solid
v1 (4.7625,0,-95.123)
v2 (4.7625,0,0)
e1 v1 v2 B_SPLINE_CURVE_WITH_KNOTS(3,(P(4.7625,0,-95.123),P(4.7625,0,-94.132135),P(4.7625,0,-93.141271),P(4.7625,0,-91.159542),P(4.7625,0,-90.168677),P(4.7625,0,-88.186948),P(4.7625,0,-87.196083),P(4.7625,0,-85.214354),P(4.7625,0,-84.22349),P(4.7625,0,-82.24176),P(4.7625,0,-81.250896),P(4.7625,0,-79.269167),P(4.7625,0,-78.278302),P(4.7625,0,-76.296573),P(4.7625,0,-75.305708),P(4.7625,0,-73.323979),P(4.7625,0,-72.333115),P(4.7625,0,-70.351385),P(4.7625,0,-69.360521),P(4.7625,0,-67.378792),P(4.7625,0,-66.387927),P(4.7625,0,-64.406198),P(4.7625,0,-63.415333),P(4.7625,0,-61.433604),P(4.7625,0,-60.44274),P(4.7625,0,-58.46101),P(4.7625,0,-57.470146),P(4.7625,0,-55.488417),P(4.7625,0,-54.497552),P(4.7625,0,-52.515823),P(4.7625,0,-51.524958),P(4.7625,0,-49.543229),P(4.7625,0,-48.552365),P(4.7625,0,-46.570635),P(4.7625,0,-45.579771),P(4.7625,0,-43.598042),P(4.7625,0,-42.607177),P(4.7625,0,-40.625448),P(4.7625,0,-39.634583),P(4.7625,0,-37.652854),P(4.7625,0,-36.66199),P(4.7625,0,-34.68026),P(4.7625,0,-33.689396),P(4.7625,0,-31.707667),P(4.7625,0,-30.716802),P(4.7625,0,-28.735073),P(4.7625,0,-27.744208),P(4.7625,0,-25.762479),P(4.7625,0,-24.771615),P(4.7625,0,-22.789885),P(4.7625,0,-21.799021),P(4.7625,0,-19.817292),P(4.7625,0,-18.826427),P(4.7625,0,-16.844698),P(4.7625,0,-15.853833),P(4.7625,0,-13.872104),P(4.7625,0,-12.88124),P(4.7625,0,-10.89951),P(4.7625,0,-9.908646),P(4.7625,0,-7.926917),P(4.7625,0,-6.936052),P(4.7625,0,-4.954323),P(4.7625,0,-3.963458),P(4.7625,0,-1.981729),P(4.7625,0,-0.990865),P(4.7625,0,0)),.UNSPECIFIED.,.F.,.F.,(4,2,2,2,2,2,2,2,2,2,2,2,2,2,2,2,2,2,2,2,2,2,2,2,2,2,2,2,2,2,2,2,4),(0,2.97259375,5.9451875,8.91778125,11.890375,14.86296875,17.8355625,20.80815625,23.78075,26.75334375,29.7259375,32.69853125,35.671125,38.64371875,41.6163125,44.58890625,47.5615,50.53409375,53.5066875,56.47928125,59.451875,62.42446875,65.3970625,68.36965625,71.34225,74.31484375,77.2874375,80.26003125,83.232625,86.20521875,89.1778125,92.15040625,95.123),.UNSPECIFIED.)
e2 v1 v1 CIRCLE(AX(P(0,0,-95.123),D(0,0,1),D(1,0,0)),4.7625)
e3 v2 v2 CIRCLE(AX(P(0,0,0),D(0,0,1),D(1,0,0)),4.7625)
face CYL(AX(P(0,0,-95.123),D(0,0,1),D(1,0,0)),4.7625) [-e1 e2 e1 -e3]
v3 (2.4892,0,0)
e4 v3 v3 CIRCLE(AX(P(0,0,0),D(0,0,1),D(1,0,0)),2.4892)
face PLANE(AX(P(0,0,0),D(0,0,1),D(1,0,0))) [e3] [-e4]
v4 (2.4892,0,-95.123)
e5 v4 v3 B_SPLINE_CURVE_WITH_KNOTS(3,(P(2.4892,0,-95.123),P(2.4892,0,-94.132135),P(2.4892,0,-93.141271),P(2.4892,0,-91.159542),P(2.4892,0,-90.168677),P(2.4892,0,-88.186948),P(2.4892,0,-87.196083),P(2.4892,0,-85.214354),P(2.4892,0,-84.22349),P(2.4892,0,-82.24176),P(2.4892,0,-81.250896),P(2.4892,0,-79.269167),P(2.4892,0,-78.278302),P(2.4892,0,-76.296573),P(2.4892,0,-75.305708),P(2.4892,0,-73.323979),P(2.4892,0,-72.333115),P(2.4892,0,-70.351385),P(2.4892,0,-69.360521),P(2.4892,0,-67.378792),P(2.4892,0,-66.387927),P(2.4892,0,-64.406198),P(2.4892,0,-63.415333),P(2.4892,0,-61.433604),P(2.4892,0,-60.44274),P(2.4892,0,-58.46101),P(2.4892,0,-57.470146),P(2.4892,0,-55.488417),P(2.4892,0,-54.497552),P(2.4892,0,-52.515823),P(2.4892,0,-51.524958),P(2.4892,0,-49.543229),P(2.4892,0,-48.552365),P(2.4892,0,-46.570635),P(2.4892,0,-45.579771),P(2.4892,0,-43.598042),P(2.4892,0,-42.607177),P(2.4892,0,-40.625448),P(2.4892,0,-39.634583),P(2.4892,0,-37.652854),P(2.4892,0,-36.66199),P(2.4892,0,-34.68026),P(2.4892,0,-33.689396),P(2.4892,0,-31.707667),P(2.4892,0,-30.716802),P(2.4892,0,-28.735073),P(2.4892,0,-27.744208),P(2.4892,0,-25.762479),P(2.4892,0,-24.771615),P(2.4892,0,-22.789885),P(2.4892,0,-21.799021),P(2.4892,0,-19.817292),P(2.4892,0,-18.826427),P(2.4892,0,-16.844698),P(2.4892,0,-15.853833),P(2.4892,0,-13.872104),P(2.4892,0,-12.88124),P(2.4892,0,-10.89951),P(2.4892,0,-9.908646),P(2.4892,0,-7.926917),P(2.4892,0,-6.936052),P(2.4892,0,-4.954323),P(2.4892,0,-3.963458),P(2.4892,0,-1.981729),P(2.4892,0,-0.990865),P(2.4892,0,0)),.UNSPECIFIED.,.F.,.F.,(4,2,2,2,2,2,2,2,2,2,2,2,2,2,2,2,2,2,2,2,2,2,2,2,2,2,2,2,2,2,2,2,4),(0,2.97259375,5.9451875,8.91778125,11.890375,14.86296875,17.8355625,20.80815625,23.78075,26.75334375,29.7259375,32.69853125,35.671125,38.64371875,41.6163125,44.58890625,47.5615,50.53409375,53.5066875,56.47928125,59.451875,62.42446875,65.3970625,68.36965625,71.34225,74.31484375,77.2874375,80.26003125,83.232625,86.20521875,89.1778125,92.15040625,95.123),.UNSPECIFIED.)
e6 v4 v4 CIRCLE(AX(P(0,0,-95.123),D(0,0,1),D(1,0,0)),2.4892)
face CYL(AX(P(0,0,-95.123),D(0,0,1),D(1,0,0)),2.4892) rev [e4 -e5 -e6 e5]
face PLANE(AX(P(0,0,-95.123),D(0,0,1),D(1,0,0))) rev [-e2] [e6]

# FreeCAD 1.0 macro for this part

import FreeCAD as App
import Part
import Sketcher

V = App.Vector
Q = App.Units.Quantity

doc = App.newDocument("Part")
params = doc.addObject("Spreadsheet::Sheet", "Params")
for row, (alias, value) in enumerate([
    ("sketch1_diameter", "0.375 in"),
    ("sketch1_diameter2", "0.196 in"),
    ("pad1_length", "3.745 in"),
], start=1):
    params.set(f"A{row}", alias)
    params.set(f"B{row}", "=" + value)
    params.setAlias(f"B{row}", alias)

body = doc.addObject("PartDesign::Body", "Body")

sketch1 = body.newObject("Sketcher::SketchObject", "Sketch")
sketch1.AttachmentSupport = (doc.getObject("XY_Plane"), [""])
sketch1.MapMode = "FlatFace"
sketch1.addGeometry([
    Part.Circle(V(0, 0, 0), V(0, 0, 1), 4.8),
    Part.Circle(V(0, 0, 0), V(0, 0, 1), 2.5),
], False)
sketch1.addConstraint([
    Sketcher.Constraint("Coincident", 0, 3, -1, 1),
    Sketcher.Constraint("Coincident", 1, 3, -1, 1),
    Sketcher.Constraint("Diameter", 0, Q("0.375 in")),
    Sketcher.Constraint("Diameter", 1, Q("0.196 in")),
])
sketch1.setExpression("Constraints[2]", "Params.sketch1_diameter")
sketch1.setExpression("Constraints[3]", "Params.sketch1_diameter2")
pad1 = body.newObject("PartDesign::Pad", "Pad")
pad1.Profile = sketch1
pad1.setExpression("Length", "Params.pad1_length")
pad1.Reversed = True

doc.recompute()
